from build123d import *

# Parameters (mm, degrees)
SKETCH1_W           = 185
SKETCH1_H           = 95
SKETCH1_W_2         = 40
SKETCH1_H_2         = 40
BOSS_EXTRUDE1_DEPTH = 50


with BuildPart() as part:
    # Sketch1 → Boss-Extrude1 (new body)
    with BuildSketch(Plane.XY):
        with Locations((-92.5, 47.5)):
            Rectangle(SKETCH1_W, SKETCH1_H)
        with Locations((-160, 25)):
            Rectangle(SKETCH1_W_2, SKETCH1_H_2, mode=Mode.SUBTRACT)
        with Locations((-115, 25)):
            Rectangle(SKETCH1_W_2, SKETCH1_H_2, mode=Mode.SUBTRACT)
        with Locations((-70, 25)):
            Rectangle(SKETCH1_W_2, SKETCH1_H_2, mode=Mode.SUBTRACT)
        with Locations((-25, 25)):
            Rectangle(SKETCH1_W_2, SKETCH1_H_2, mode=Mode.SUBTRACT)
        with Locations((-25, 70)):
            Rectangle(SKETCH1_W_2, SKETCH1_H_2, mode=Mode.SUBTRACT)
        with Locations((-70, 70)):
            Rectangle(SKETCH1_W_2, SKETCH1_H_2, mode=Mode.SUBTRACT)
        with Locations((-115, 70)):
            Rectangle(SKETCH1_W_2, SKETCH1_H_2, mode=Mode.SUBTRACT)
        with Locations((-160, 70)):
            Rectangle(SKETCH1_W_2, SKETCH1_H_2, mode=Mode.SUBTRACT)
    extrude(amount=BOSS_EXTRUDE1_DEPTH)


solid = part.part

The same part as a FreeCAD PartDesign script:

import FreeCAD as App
import Part
import Sketcher

V = App.Vector
Q = App.Units.Quantity


def add_polygon(sketch, points):
    """Adds a closed chain of lines whose ends are joined by coincident constraints."""
    first, n = sketch.GeometryCount, len(points)
    for a, b in zip(points, points[1:] + points[:1]):
        sketch.addGeometry(Part.LineSegment(App.Vector(*a, 0), App.Vector(*b, 0)), False)
    for i in range(n):
        sketch.addConstraint(Sketcher.Constraint("Coincident", first + i, 2, first + (i + 1) % n, 1))

doc = App.newDocument("Part")
body = doc.addObject("PartDesign::Body", "Body")

# Sketch on XY plane
sketch1 = body.newObject("Sketcher::SketchObject", "Sketch")
sketch1.AttachmentSupport = (doc.getObject("XY_Plane"), [""])
sketch1.MapMode = "FlatFace"
add_polygon(sketch1, [(-185, 95), (-185, 0), (0, 0), (0, 95)])  # lines 0-3
add_polygon(sketch1, [(-140, 5), (-180, 5), (-180, 45), (-140, 45)])  # lines 4-7
add_polygon(sketch1, [(-95, 5), (-135, 5), (-135, 45), (-95, 45)])  # lines 8-11
add_polygon(sketch1, [(-50, 5), (-90, 5), (-90, 45), (-50, 45)])  # lines 12-15
add_polygon(sketch1, [(-5, 5), (-45, 5), (-45, 45), (-5, 45)])  # lines 16-19
add_polygon(sketch1, [(-140, 50), (-180, 50), (-180, 90), (-140, 90)])  # lines 20-23
add_polygon(sketch1, [(-95, 50), (-135, 50), (-135, 90), (-95, 90)])  # lines 24-27
add_polygon(sketch1, [(-50, 50), (-90, 50), (-90, 90), (-50, 90)])  # lines 28-31
add_polygon(sketch1, [(-5, 50), (-45, 50), (-45, 90), (-5, 90)])  # lines 32-35
sketch1.addConstraint([
    Sketcher.Constraint("Vertical", 0),
    Sketcher.Constraint("Horizontal", 1),
    Sketcher.Constraint("Vertical", 2),
    Sketcher.Constraint("Horizontal", 3),
    Sketcher.Constraint("Horizontal", 4),
    Sketcher.Constraint("Vertical", 5),
    Sketcher.Constraint("Horizontal", 6),
    Sketcher.Constraint("Vertical", 7),
    Sketcher.Constraint("Horizontal", 8),
    Sketcher.Constraint("Vertical", 9),
    Sketcher.Constraint("Horizontal", 10),
    Sketcher.Constraint("Vertical", 11),
    Sketcher.Constraint("Horizontal", 12),
    Sketcher.Constraint("Vertical", 13),
    Sketcher.Constraint("Horizontal", 14),
    Sketcher.Constraint("Vertical", 15),
    Sketcher.Constraint("Horizontal", 16),
    Sketcher.Constraint("Vertical", 17),
    Sketcher.Constraint("Horizontal", 18),
    Sketcher.Constraint("Vertical", 19),
    Sketcher.Constraint("Horizontal", 20),
    Sketcher.Constraint("Vertical", 21),
    Sketcher.Constraint("Horizontal", 22),
    Sketcher.Constraint("Vertical", 23),
    Sketcher.Constraint("Horizontal", 24),
    Sketcher.Constraint("Vertical", 25),
    Sketcher.Constraint("Horizontal", 26),
    Sketcher.Constraint("Vertical", 27),
    Sketcher.Constraint("Horizontal", 28),
    Sketcher.Constraint("Vertical", 29),
    Sketcher.Constraint("Horizontal", 30),
    Sketcher.Constraint("Vertical", 31),
    Sketcher.Constraint("Horizontal", 32),
    Sketcher.Constraint("Vertical", 33),
    Sketcher.Constraint("Horizontal", 34),
    Sketcher.Constraint("Vertical", 35),
    Sketcher.Constraint("Coincident", 1, 2, -1, 1),
    Sketcher.Constraint("Horizontal", 7, 2, 8, 2),
    Sketcher.Constraint("Horizontal", 6, 2, 9, 2),
    Sketcher.Constraint("Horizontal", 11, 2, 12, 2),
    Sketcher.Constraint("Horizontal", 10, 2, 13, 2),
    Sketcher.Constraint("Horizontal", 15, 2, 16, 2),
    Sketcher.Constraint("Horizontal", 14, 2, 17, 2),
    Sketcher.Constraint("Horizontal", 23, 2, 24, 2),
    Sketcher.Constraint("Horizontal", 22, 2, 25, 2),
    Sketcher.Constraint("Horizontal", 27, 2, 28, 2),
    Sketcher.Constraint("Horizontal", 26, 2, 29, 2),
    Sketcher.Constraint("Horizontal", 31, 2, 32, 2),
    Sketcher.Constraint("Horizontal", 30, 2, 33, 2),
    Sketcher.Constraint("Vertical", 5, 2, 20, 2),
    Sketcher.Constraint("Vertical", 7, 2, 22, 2),
    Sketcher.Constraint("Vertical", 9, 2, 24, 2),
    Sketcher.Constraint("Vertical", 11, 2, 26, 2),
    Sketcher.Constraint("Vertical", 13, 2, 28, 2),
    Sketcher.Constraint("Vertical", 15, 2, 30, 2),
    Sketcher.Constraint("Vertical", 17, 2, 32, 2),
    Sketcher.Constraint("Vertical", 19, 2, 34, 2),
    Sketcher.Constraint("Equal", 6, 8),
    Sketcher.Constraint("Equal", 10, 12),
    Sketcher.Constraint("Equal", 14, 16),
    Sketcher.Constraint("Equal", 34, 5),
    Sketcher.Constraint("Equal", 19, 21),
    Sketcher.Constraint("DistanceX", 1, 1, 1, 2, Q("185 mm")),
    Sketcher.Constraint("DistanceX", 4, 2, 4, 1, Q("40 mm")),
    Sketcher.Constraint("DistanceY", 0, 2, 0, 1, Q("95 mm")),
    Sketcher.Constraint("DistanceX", 4, 2, -1, 1, Q("180 mm")),
    Sketcher.Constraint("DistanceY", -1, 1, 4, 2, Q("5 mm")),
    Sketcher.Constraint("DistanceX", 8, 2, -1, 1, Q("135 mm")),
    Sketcher.Constraint("DistanceX", 12, 2, -1, 1, Q("90 mm")),
    Sketcher.Constraint("DistanceX", 16, 2, -1, 1, Q("45 mm")),
    Sketcher.Constraint("DistanceY", -1, 1, 20, 2, Q("50 mm")),
])
pad1 = body.newObject("PartDesign::Pad", "Pad")
pad1.Profile = sketch1
pad1.Length = 50

doc.recompute()
